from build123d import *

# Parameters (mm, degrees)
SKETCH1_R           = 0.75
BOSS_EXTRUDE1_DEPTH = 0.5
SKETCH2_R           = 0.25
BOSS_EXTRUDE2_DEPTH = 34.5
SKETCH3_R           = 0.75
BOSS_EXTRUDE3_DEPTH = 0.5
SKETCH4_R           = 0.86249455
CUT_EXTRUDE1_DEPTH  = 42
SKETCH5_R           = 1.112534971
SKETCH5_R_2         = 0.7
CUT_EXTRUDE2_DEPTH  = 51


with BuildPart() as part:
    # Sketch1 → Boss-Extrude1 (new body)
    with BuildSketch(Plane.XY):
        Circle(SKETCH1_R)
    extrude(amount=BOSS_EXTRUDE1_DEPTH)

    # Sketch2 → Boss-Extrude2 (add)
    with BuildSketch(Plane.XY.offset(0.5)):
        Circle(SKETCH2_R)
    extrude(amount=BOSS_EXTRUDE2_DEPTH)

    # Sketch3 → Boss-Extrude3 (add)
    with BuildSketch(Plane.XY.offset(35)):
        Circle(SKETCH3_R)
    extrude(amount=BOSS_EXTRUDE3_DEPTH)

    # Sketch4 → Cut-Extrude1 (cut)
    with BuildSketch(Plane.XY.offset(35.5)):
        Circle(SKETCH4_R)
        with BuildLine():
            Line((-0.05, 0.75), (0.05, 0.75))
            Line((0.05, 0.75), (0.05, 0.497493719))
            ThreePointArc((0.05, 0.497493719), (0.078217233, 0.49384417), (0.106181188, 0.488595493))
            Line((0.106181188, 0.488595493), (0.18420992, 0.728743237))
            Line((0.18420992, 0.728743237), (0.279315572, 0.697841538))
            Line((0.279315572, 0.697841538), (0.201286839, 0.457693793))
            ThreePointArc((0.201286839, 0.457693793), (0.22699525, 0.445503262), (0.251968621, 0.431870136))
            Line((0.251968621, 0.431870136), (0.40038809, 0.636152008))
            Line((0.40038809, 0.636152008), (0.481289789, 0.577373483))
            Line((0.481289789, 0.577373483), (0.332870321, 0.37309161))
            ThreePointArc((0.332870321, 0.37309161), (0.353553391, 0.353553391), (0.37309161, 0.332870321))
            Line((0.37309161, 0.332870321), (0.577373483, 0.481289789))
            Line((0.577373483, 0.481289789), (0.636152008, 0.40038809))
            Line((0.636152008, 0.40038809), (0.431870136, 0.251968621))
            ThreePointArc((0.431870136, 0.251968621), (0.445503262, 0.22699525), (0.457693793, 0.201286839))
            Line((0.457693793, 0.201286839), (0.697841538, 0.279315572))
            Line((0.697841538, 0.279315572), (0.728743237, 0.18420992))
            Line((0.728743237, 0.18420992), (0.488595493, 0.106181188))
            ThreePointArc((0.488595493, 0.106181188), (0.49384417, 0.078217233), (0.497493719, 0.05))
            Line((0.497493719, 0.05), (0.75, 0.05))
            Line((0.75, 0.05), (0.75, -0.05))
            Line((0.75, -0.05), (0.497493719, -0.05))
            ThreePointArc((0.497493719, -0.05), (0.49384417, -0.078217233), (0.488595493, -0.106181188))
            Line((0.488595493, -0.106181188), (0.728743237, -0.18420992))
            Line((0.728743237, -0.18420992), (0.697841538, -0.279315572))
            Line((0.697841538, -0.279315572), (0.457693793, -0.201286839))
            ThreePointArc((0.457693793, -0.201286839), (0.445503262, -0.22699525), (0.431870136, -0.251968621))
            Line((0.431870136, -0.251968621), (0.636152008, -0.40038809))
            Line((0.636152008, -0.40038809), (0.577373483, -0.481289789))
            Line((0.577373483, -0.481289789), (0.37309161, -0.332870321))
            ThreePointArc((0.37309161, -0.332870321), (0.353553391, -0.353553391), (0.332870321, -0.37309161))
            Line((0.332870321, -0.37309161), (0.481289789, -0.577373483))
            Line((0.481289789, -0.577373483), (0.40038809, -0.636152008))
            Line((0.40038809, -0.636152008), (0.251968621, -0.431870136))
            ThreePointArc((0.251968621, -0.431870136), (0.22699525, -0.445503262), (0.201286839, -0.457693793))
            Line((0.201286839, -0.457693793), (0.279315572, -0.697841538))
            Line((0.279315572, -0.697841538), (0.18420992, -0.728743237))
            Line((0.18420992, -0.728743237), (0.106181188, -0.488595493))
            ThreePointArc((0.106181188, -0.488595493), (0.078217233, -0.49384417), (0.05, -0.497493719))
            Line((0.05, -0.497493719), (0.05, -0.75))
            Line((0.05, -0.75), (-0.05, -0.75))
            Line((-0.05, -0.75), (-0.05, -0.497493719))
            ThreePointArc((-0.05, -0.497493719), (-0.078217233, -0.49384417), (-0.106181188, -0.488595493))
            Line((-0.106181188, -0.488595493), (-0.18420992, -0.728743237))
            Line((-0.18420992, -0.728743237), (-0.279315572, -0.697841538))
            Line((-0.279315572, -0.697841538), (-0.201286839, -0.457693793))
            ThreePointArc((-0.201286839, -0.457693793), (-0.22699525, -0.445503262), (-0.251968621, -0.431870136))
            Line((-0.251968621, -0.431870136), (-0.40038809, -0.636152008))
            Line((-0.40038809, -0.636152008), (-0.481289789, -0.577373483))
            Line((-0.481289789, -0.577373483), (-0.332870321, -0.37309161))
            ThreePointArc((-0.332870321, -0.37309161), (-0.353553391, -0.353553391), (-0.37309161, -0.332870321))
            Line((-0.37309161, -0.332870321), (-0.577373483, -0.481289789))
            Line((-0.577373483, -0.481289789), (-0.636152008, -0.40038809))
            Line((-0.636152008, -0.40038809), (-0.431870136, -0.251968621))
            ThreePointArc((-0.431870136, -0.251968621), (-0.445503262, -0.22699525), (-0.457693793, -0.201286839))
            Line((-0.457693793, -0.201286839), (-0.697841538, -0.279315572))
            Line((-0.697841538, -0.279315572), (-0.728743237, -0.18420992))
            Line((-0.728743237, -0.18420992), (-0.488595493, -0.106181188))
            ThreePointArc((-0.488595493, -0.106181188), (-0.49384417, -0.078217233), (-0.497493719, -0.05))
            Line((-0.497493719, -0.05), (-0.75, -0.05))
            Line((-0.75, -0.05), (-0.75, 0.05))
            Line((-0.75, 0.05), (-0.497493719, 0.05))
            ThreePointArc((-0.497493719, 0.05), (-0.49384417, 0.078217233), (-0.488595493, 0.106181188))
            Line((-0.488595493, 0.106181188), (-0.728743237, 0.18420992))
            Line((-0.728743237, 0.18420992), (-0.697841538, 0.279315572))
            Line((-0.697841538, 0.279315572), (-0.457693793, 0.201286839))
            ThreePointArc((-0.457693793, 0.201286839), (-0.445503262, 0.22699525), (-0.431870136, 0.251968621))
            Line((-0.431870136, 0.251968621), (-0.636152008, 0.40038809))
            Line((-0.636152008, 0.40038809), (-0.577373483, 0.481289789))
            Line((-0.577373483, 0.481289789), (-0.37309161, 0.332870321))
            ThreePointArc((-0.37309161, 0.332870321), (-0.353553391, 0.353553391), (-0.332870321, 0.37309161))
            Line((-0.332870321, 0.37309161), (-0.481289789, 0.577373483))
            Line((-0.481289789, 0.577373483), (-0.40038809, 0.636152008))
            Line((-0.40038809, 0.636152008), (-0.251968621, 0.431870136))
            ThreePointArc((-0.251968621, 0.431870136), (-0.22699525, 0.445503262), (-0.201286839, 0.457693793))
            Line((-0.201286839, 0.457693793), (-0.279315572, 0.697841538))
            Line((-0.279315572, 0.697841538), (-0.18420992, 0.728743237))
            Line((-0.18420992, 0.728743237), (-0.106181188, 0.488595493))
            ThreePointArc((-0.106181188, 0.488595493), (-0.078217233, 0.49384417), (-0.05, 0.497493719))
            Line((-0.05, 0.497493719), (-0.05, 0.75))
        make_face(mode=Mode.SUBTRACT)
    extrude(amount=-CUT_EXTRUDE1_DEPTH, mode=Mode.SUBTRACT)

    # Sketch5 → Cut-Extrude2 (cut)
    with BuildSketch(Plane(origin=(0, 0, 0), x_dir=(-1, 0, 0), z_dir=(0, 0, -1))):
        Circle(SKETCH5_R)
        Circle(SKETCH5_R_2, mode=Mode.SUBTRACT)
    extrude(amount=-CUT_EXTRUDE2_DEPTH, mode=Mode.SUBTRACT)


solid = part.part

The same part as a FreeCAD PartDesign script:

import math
import FreeCAD as App
import Part
import Sketcher

V = App.Vector
Q = App.Units.Quantity

doc = App.newDocument("Part")
body = doc.addObject("PartDesign::Body", "Body")

# Sketch on XY plane
sketch1 = body.newObject("Sketcher::SketchObject", "Sketch")
sketch1.AttachmentSupport = (doc.getObject("XY_Plane"), [""])
sketch1.MapMode = "FlatFace"
sketch1.addGeometry(Part.Circle(V(0, 0, 0), V(0, 0, 1), 0.8), False)
sketch1.addConstraint([
    Sketcher.Constraint("Coincident", 0, 3, -1, 1),
    Sketcher.Constraint("Diameter", 0, Q("1.5 mm")),
])
pad1 = body.newObject("PartDesign::Pad", "Pad")
pad1.Profile = sketch1
pad1.Length = 0.5

# Sketch on XY plane
sketch2 = body.newObject("Sketcher::SketchObject", "Sketch001")
sketch2.AttachmentSupport = (doc.getObject("XY_Plane"), [""])
sketch2.MapMode = "FlatFace"
sketch2.AttachmentOffset = App.Placement(V(0, 0, 0.5), App.Rotation())
sketch2.addGeometry(Part.Circle(V(0, 0, 0), V(0, 0, 1), 0.25), False)
sketch2.addConstraint([
    Sketcher.Constraint("Coincident", 0, 3, -1, 1),
    Sketcher.Constraint("Diameter", 0, Q("0.5 mm")),
])
pad2 = body.newObject("PartDesign::Pad", "Pad001")
pad2.Profile = sketch2
pad2.Length = 34.5

# Sketch on XY plane
sketch3 = body.newObject("Sketcher::SketchObject", "Sketch002")
sketch3.AttachmentSupport = (doc.getObject("XY_Plane"), [""])
sketch3.MapMode = "FlatFace"
sketch3.AttachmentOffset = App.Placement(V(0, 0, 35), App.Rotation())
sketch3.addGeometry(Part.Circle(V(0, 0, 0), V(0, 0, 1), 0.8), False)
sketch3.addConstraint([
    Sketcher.Constraint("Coincident", 0, 3, -1, 1),
    Sketcher.Constraint("Diameter", 0, Q("1.5 mm")),
])
pad3 = body.newObject("PartDesign::Pad", "Pad002")
pad3.Profile = sketch3
pad3.Length = 0.5

# Sketch on XY plane
sketch4 = body.newObject("Sketcher::SketchObject", "Sketch003")
sketch4.AttachmentSupport = (doc.getObject("XY_Plane"), [""])
sketch4.MapMode = "FlatFace"
sketch4.AttachmentOffset = App.Placement(V(0, 0, 35.5), App.Rotation())
sketch4.addGeometry([
    Part.Circle(V(0, 0, 0), V(0, 0, 1), 0.86),  # 0
    Part.LineSegment(V(-0.05, 0.5, 0), V(-0.05, 0.75, 0)),  # 1
    Part.LineSegment(V(-0.05, 0.75, 0), V(0.05, 0.75, 0)),  # 2
    Part.LineSegment(V(0.05, 0.75, 0), V(0.05, 0.5, 0)),  # 3
    Part.ArcOfCircle(Part.Circle(V(0, 0, 0), V(0, 0, 1), 0.5), math.radians(77.74), math.radians(84.26)),  # 4
    Part.LineSegment(V(0.11, 0.49, 0), V(0.18, 0.73, 0)),  # 5
    Part.LineSegment(V(0.18, 0.73, 0), V(0.28, 0.7, 0)),  # 6
    Part.LineSegment(V(0.28, 0.7, 0), V(0.2, 0.46, 0)),  # 7
    Part.ArcOfCircle(Part.Circle(V(0, 0, 0), V(0, 0, 1), 0.5), math.radians(59.74), math.radians(66.26)),  # 8
    Part.LineSegment(V(0.25, 0.43, 0), V(0.4, 0.64, 0)),  # 9
    Part.LineSegment(V(0.4, 0.64, 0), V(0.48, 0.58, 0)),  # 10
    Part.LineSegment(V(0.48, 0.58, 0), V(0.33, 0.37, 0)),  # 11
    Part.ArcOfCircle(Part.Circle(V(0, 0, 0), V(0, 0, 1), 0.5), math.radians(41.74), math.radians(48.26)),  # 12
    Part.LineSegment(V(0.37, 0.33, 0), V(0.58, 0.48, 0)),  # 13
    Part.LineSegment(V(0.58, 0.48, 0), V(0.64, 0.4, 0)),  # 14
    Part.LineSegment(V(0.64, 0.4, 0), V(0.43, 0.25, 0)),  # 15
    Part.ArcOfCircle(Part.Circle(V(0, 0, 0), V(0, 0, 1), 0.5), math.radians(23.74), math.radians(30.26)),  # 16
    Part.LineSegment(V(0.46, 0.2, 0), V(0.7, 0.28, 0)),  # 17
    Part.LineSegment(V(0.7, 0.28, 0), V(0.73, 0.18, 0)),  # 18
    Part.LineSegment(V(0.73, 0.18, 0), V(0.49, 0.11, 0)),  # 19
    Part.ArcOfCircle(Part.Circle(V(0, 0, 0), V(0, 0, 1), 0.5), math.radians(5.74), math.radians(12.26)),  # 20
    Part.LineSegment(V(0.5, 0.05, 0), V(0.75, 0.05, 0)),  # 21
    Part.LineSegment(V(0.75, 0.05, 0), V(0.75, -0.05, 0)),  # 22
    Part.LineSegment(V(0.75, -0.05, 0), V(0.5, -0.05, 0)),  # 23
    Part.ArcOfCircle(Part.Circle(V(0, 0, 0), V(0, 0, 1), 0.5), math.radians(-12.26), math.radians(-5.74)),  # 24
    Part.LineSegment(V(0.49, -0.11, 0), V(0.73, -0.18, 0)),  # 25
    Part.LineSegment(V(0.73, -0.18, 0), V(0.7, -0.28, 0)),  # 26
    Part.LineSegment(V(0.7, -0.28, 0), V(0.46, -0.2, 0)),  # 27
    Part.ArcOfCircle(Part.Circle(V(0, 0, 0), V(0, 0, 1), 0.5), math.radians(-30.26), math.radians(-23.74)),  # 28
    Part.LineSegment(V(0.43, -0.25, 0), V(0.64, -0.4, 0)),  # 29
    Part.LineSegment(V(0.64, -0.4, 0), V(0.58, -0.48, 0)),  # 30
    Part.LineSegment(V(0.58, -0.48, 0), V(0.37, -0.33, 0)),  # 31
    Part.ArcOfCircle(Part.Circle(V(0, 0, 0), V(0, 0, 1), 0.5), math.radians(-48.26), math.radians(-41.74)),  # 32
    Part.LineSegment(V(0.33, -0.37, 0), V(0.48, -0.58, 0)),  # 33
    Part.LineSegment(V(0.48, -0.58, 0), V(0.4, -0.64, 0)),  # 34
    Part.LineSegment(V(0.4, -0.64, 0), V(0.25, -0.43, 0)),  # 35
    Part.ArcOfCircle(Part.Circle(V(0, 0, 0), V(0, 0, 1), 0.5), math.radians(-66.26), math.radians(-59.74)),  # 36
    Part.LineSegment(V(0.2, -0.46, 0), V(0.28, -0.7, 0)),  # 37
    Part.LineSegment(V(0.28, -0.7, 0), V(0.18, -0.73, 0)),  # 38
    Part.LineSegment(V(0.18, -0.73, 0), V(0.11, -0.49, 0)),  # 39
    Part.ArcOfCircle(Part.Circle(V(0, 0, 0), V(0, 0, 1), 0.5), math.radians(-84.26), math.radians(-77.74)),  # 40
    Part.LineSegment(V(0.05, -0.5, 0), V(0.05, -0.75, 0)),  # 41
    Part.LineSegment(V(0.05, -0.75, 0), V(-0.05, -0.75, 0)),  # 42
    Part.LineSegment(V(-0.05, -0.75, 0), V(-0.05, -0.5, 0)),  # 43
    Part.ArcOfCircle(Part.Circle(V(0, 0, 0), V(0, 0, 1), 0.5), math.radians(-102.26), math.radians(-95.74)),  # 44
    Part.LineSegment(V(-0.11, -0.49, 0), V(-0.18, -0.73, 0)),  # 45
    Part.LineSegment(V(-0.18, -0.73, 0), V(-0.28, -0.7, 0)),  # 46
    Part.LineSegment(V(-0.28, -0.7, 0), V(-0.2, -0.46, 0)),  # 47
    Part.ArcOfCircle(Part.Circle(V(0, 0, 0), V(0, 0, 1), 0.5), math.radians(-120.26), math.radians(-113.74)),  # 48
    Part.LineSegment(V(-0.25, -0.43, 0), V(-0.4, -0.64, 0)),  # 49
    Part.LineSegment(V(-0.4, -0.64, 0), V(-0.48, -0.58, 0)),  # 50
    Part.LineSegment(V(-0.48, -0.58, 0), V(-0.33, -0.37, 0)),  # 51
    Part.ArcOfCircle(Part.Circle(V(0, 0, 0), V(0, 0, 1), 0.5), math.radians(-138.26), math.radians(-131.74)),  # 52
    Part.LineSegment(V(-0.37, -0.33, 0), V(-0.58, -0.48, 0)),  # 53
    Part.LineSegment(V(-0.58, -0.48, 0), V(-0.64, -0.4, 0)),  # 54
    Part.LineSegment(V(-0.64, -0.4, 0), V(-0.43, -0.25, 0)),  # 55
    Part.ArcOfCircle(Part.Circle(V(0, 0, 0), V(0, 0, 1), 0.5), math.radians(-156.26), math.radians(-149.74)),  # 56
    Part.LineSegment(V(-0.46, -0.2, 0), V(-0.7, -0.28, 0)),  # 57
    Part.LineSegment(V(-0.7, -0.28, 0), V(-0.73, -0.18, 0)),  # 58
    Part.LineSegment(V(-0.73, -0.18, 0), V(-0.49, -0.11, 0)),  # 59
    Part.ArcOfCircle(Part.Circle(V(0, 0, 0), V(0, 0, 1), 0.5), math.radians(-174.26), math.radians(-167.74)),  # 60
    Part.LineSegment(V(-0.5, -0.05, 0), V(-0.75, -0.05, 0)),  # 61
    Part.LineSegment(V(-0.75, -0.05, 0), V(-0.75, 0.05, 0)),  # 62
    Part.LineSegment(V(-0.75, 0.05, 0), V(-0.5, 0.05, 0)),  # 63
    Part.ArcOfCircle(Part.Circle(V(0, 0, 0), V(0, 0, 1), 0.5), math.radians(167.74), math.radians(174.26)),  # 64
    Part.LineSegment(V(-0.49, 0.11, 0), V(-0.73, 0.18, 0)),  # 65
    Part.LineSegment(V(-0.73, 0.18, 0), V(-0.7, 0.28, 0)),  # 66
    Part.LineSegment(V(-0.7, 0.28, 0), V(-0.46, 0.2, 0)),  # 67
    Part.ArcOfCircle(Part.Circle(V(0, 0, 0), V(0, 0, 1), 0.5), math.radians(149.74), math.radians(156.26)),  # 68
    Part.LineSegment(V(-0.43, 0.25, 0), V(-0.64, 0.4, 0)),  # 69
    Part.LineSegment(V(-0.64, 0.4, 0), V(-0.58, 0.48, 0)),  # 70
    Part.LineSegment(V(-0.58, 0.48, 0), V(-0.37, 0.33, 0)),  # 71
    Part.ArcOfCircle(Part.Circle(V(0, 0, 0), V(0, 0, 1), 0.5), math.radians(131.74), math.radians(138.26)),  # 72
    Part.LineSegment(V(-0.33, 0.37, 0), V(-0.48, 0.58, 0)),  # 73
    Part.LineSegment(V(-0.48, 0.58, 0), V(-0.4, 0.64, 0)),  # 74
    Part.LineSegment(V(-0.4, 0.64, 0), V(-0.25, 0.43, 0)),  # 75
    Part.ArcOfCircle(Part.Circle(V(0, 0, 0), V(0, 0, 1), 0.5), math.radians(113.74), math.radians(120.26)),  # 76
    Part.LineSegment(V(-0.2, 0.46, 0), V(-0.28, 0.7, 0)),  # 77
    Part.LineSegment(V(-0.28, 0.7, 0), V(-0.18, 0.73, 0)),  # 78
    Part.LineSegment(V(-0.18, 0.73, 0), V(-0.11, 0.49, 0)),  # 79
    Part.ArcOfCircle(Part.Circle(V(0, 0, 0), V(0, 0, 1), 0.5), math.radians(95.74), math.radians(102.26)),  # 80
], False)
sketch4.addConstraint([
    Sketcher.Constraint("Coincident", 1, 2, 2, 1),
    Sketcher.Constraint("Coincident", 2, 2, 3, 1),
    Sketcher.Constraint("Coincident", 3, 2, 4, 2),
    Sketcher.Constraint("Coincident", 4, 1, 5, 1),
    Sketcher.Constraint("Coincident", 5, 2, 6, 1),
    Sketcher.Constraint("Coincident", 6, 2, 7, 1),
    Sketcher.Constraint("Coincident", 7, 2, 8, 2),
    Sketcher.Constraint("Coincident", 8, 1, 9, 1),
    Sketcher.Constraint("Coincident", 9, 2, 10, 1),
    Sketcher.Constraint("Coincident", 10, 2, 11, 1),
    Sketcher.Constraint("Coincident", 11, 2, 12, 2),
    Sketcher.Constraint("Coincident", 12, 1, 13, 1),
    Sketcher.Constraint("Coincident", 13, 2, 14, 1),
    Sketcher.Constraint("Coincident", 14, 2, 15, 1),
    Sketcher.Constraint("Coincident", 15, 2, 16, 2),
    Sketcher.Constraint("Coincident", 16, 1, 17, 1),
    Sketcher.Constraint("Coincident", 17, 2, 18, 1),
    Sketcher.Constraint("Coincident", 18, 2, 19, 1),
    Sketcher.Constraint("Coincident", 19, 2, 20, 2),
    Sketcher.Constraint("Coincident", 20, 1, 21, 1),
    Sketcher.Constraint("Coincident", 21, 2, 22, 1),
    Sketcher.Constraint("Coincident", 22, 2, 23, 1),
    Sketcher.Constraint("Coincident", 23, 2, 24, 2),
    Sketcher.Constraint("Coincident", 24, 1, 25, 1),
    Sketcher.Constraint("Coincident", 25, 2, 26, 1),
    Sketcher.Constraint("Coincident", 26, 2, 27, 1),
    Sketcher.Constraint("Coincident", 27, 2, 28, 2),
    Sketcher.Constraint("Coincident", 28, 1, 29, 1),
    Sketcher.Constraint("Coincident", 29, 2, 30, 1),
    Sketcher.Constraint("Coincident", 30, 2, 31, 1),
    Sketcher.Constraint("Coincident", 31, 2, 32, 2),
    Sketcher.Constraint("Coincident", 32, 1, 33, 1),
    Sketcher.Constraint("Coincident", 33, 2, 34, 1),
    Sketcher.Constraint("Coincident", 34, 2, 35, 1),
    Sketcher.Constraint("Coincident", 35, 2, 36, 2),
    Sketcher.Constraint("Coincident", 36, 1, 37, 1),
    Sketcher.Constraint("Coincident", 37, 2, 38, 1),
    Sketcher.Constraint("Coincident", 38, 2, 39, 1),
    Sketcher.Constraint("Coincident", 39, 2, 40, 2),
    Sketcher.Constraint("Coincident", 40, 1, 41, 1),
    Sketcher.Constraint("Coincident", 41, 2, 42, 1),
    Sketcher.Constraint("Coincident", 42, 2, 43, 1),
    Sketcher.Constraint("Coincident", 43, 2, 44, 2),
    Sketcher.Constraint("Coincident", 44, 1, 45, 1),
    Sketcher.Constraint("Coincident", 45, 2, 46, 1),
    Sketcher.Constraint("Coincident", 46, 2, 47, 1),
    Sketcher.Constraint("Coincident", 47, 2, 48, 2),
    Sketcher.Constraint("Coincident", 48, 1, 49, 1),
    Sketcher.Constraint("Coincident", 49, 2, 50, 1),
    Sketcher.Constraint("Coincident", 50, 2, 51, 1),
    Sketcher.Constraint("Coincident", 51, 2, 52, 2),
    Sketcher.Constraint("Coincident", 52, 1, 53, 1),
    Sketcher.Constraint("Coincident", 53, 2, 54, 1),
    Sketcher.Constraint("Coincident", 54, 2, 55, 1),
    Sketcher.Constraint("Coincident", 55, 2, 56, 2),
    Sketcher.Constraint("Coincident", 56, 1, 57, 1),
    Sketcher.Constraint("Coincident", 57, 2, 58, 1),
    Sketcher.Constraint("Coincident", 58, 2, 59, 1),
    Sketcher.Constraint("Coincident", 59, 2, 60, 2),
    Sketcher.Constraint("Coincident", 60, 1, 61, 1),
    Sketcher.Constraint("Coincident", 61, 2, 62, 1),
    Sketcher.Constraint("Coincident", 62, 2, 63, 1),
    Sketcher.Constraint("Coincident", 63, 2, 64, 2),
    Sketcher.Constraint("Coincident", 64, 1, 65, 1),
    Sketcher.Constraint("Coincident", 65, 2, 66, 1),
    Sketcher.Constraint("Coincident", 66, 2, 67, 1),
    Sketcher.Constraint("Coincident", 67, 2, 68, 2),
    Sketcher.Constraint("Coincident", 68, 1, 69, 1),
    Sketcher.Constraint("Coincident", 69, 2, 70, 1),
    Sketcher.Constraint("Coincident", 70, 2, 71, 1),
    Sketcher.Constraint("Coincident", 71, 2, 72, 2),
    Sketcher.Constraint("Coincident", 72, 1, 73, 1),
    Sketcher.Constraint("Coincident", 73, 2, 74, 1),
    Sketcher.Constraint("Coincident", 74, 2, 75, 1),
    Sketcher.Constraint("Coincident", 75, 2, 76, 2),
    Sketcher.Constraint("Coincident", 76, 1, 77, 1),
    Sketcher.Constraint("Coincident", 77, 2, 78, 1),
    Sketcher.Constraint("Coincident", 78, 2, 79, 1),
    Sketcher.Constraint("Coincident", 79, 2, 80, 2),
    Sketcher.Constraint("Coincident", 80, 1, 1, 1),
    Sketcher.Constraint("Vertical", 1),
    Sketcher.Constraint("Horizontal", 2),
    Sketcher.Constraint("Vertical", 3),
    Sketcher.Constraint("Horizontal", 21),
    Sketcher.Constraint("Vertical", 22),
    Sketcher.Constraint("Horizontal", 23),
    Sketcher.Constraint("Vertical", 41),
    Sketcher.Constraint("Horizontal", 42),
    Sketcher.Constraint("Vertical", 43),
    Sketcher.Constraint("Horizontal", 61),
    Sketcher.Constraint("Vertical", 62),
    Sketcher.Constraint("Horizontal", 63),
    Sketcher.Constraint("Coincident", 0, 3, -1, 1),
    Sketcher.Constraint("Coincident", 4, 3, -1, 1),
    Sketcher.Constraint("Coincident", 8, 3, -1, 1),
    Sketcher.Constraint("Coincident", 12, 3, -1, 1),
    Sketcher.Constraint("Coincident", 16, 3, -1, 1),
    Sketcher.Constraint("Coincident", 20, 3, -1, 1),
    Sketcher.Constraint("Coincident", 24, 3, -1, 1),
    Sketcher.Constraint("Coincident", 28, 3, -1, 1),
    Sketcher.Constraint("Coincident", 32, 3, -1, 1),
    Sketcher.Constraint("Coincident", 36, 3, -1, 1),
    Sketcher.Constraint("Coincident", 40, 3, -1, 1),
    Sketcher.Constraint("Coincident", 44, 3, -1, 1),
    Sketcher.Constraint("Coincident", 48, 3, -1, 1),
    Sketcher.Constraint("Coincident", 52, 3, -1, 1),
    Sketcher.Constraint("Coincident", 56, 3, -1, 1),
    Sketcher.Constraint("Coincident", 60, 3, -1, 1),
    Sketcher.Constraint("Coincident", 64, 3, -1, 1),
    Sketcher.Constraint("Coincident", 68, 3, -1, 1),
    Sketcher.Constraint("Coincident", 72, 3, -1, 1),
    Sketcher.Constraint("Coincident", 76, 3, -1, 1),
    Sketcher.Constraint("Coincident", 80, 3, -1, 1),
    Sketcher.Constraint("Equal", 4, 8),
    Sketcher.Constraint("Equal", 8, 12),
    Sketcher.Constraint("Equal", 12, 16),
    Sketcher.Constraint("Equal", 16, 20),
    Sketcher.Constraint("Equal", 20, 24),
    Sketcher.Constraint("Equal", 24, 28),
    Sketcher.Constraint("Equal", 28, 32),
    Sketcher.Constraint("Equal", 32, 36),
    Sketcher.Constraint("Equal", 36, 40),
    Sketcher.Constraint("Equal", 40, 44),
    Sketcher.Constraint("Equal", 44, 48),
    Sketcher.Constraint("Equal", 48, 52),
    Sketcher.Constraint("Equal", 52, 56),
    Sketcher.Constraint("Equal", 56, 60),
    Sketcher.Constraint("Equal", 60, 64),
    Sketcher.Constraint("Equal", 64, 68),
    Sketcher.Constraint("Equal", 68, 72),
    Sketcher.Constraint("Equal", 72, 76),
    Sketcher.Constraint("Equal", 76, 80),
    Sketcher.Constraint("Symmetric", 1, 2, 41, 2, -1, 1),
    Sketcher.Constraint("Symmetric", 5, 2, 45, 2, -1, 1),
    Sketcher.Constraint("Symmetric", 6, 2, 46, 2, -1, 1),
    Sketcher.Constraint("Symmetric", 9, 2, 49, 2, -1, 1),
    Sketcher.Constraint("Symmetric", 10, 2, 50, 2, -1, 1),
    Sketcher.Constraint("Symmetric", 13, 2, 53, 2, -1, 1),
    Sketcher.Constraint("Symmetric", 14, 2, 54, 2, -1, 1),
    Sketcher.Constraint("Symmetric", 17, 2, 57, 2, -1, 1),
    Sketcher.Constraint("Symmetric", 18, 2, 58, 2, -1, 1),
    Sketcher.Constraint("Symmetric", 21, 2, 61, 2, -1, 1),
    Sketcher.Constraint("Symmetric", 25, 2, 65, 2, -1, 1),
    Sketcher.Constraint("Symmetric", 26, 2, 66, 2, -1, 1),
    Sketcher.Constraint("Symmetric", 29, 2, 69, 2, -1, 1),
    Sketcher.Constraint("Symmetric", 30, 2, 70, 2, -1, 1),
    Sketcher.Constraint("Symmetric", 33, 2, 73, 2, -1, 1),
    Sketcher.Constraint("Symmetric", 34, 2, 74, 2, -1, 1),
    Sketcher.Constraint("Symmetric", 37, 2, 77, 2, -1, 1),
    Sketcher.Constraint("Symmetric", 38, 2, 78, 2, -1, 1),
    Sketcher.Constraint("Symmetric", 38, 2, 45, 2, -2),
    Sketcher.Constraint("Symmetric", 37, 2, 46, 2, -2),
    Sketcher.Constraint("Symmetric", 34, 2, 49, 2, -2),
    Sketcher.Constraint("Symmetric", 33, 2, 50, 2, -2),
    Sketcher.Constraint("Symmetric", 30, 2, 53, 2, -2),
    Sketcher.Constraint("Symmetric", 29, 2, 54, 2, -2),
    Sketcher.Constraint("Symmetric", 26, 2, 57, 2, -2),
    Sketcher.Constraint("Symmetric", 25, 2, 58, 2, -2),
    Sketcher.Constraint("Perpendicular", 5, 6),
    Sketcher.Constraint("Perpendicular", 6, 7),
    Sketcher.Constraint("Perpendicular", 9, 10),
    Sketcher.Constraint("Perpendicular", 10, 11),
    Sketcher.Constraint("Perpendicular", 13, 14),
    Sketcher.Constraint("Perpendicular", 14, 15),
    Sketcher.Constraint("Perpendicular", 17, 18),
    Sketcher.Constraint("Perpendicular", 18, 19),
    Sketcher.Constraint("Perpendicular", 7, 25),
    Sketcher.Constraint("Perpendicular", 25, 26),
    Sketcher.Constraint("Perpendicular", 26, 27),
    Sketcher.Constraint("Perpendicular", 11, 29),
    Sketcher.Constraint("Perpendicular", 29, 30),
    Sketcher.Constraint("Perpendicular", 30, 31),
    Sketcher.Constraint("Perpendicular", 15, 33),
    Sketcher.Constraint("Perpendicular", 34, 35),
    Sketcher.Constraint("Perpendicular", 19, 37),
    Sketcher.Constraint("Perpendicular", 38, 39),
    Sketcher.Constraint("Perpendicular", 27, 45),
    Sketcher.Constraint("Perpendicular", 46, 47),
    Sketcher.Constraint("Perpendicular", 31, 49),
    Sketcher.Constraint("Perpendicular", 50, 51),
    Sketcher.Constraint("Perpendicular", 35, 53),
    Sketcher.Constraint("Perpendicular", 54, 55),
    Sketcher.Constraint("Perpendicular", 39, 57),
    Sketcher.Constraint("Perpendicular", 58, 59),
    Sketcher.Constraint("Perpendicular", 47, 65),
    Sketcher.Constraint("Perpendicular", 66, 67),
    Sketcher.Constraint("Perpendicular", 51, 69),
    Sketcher.Constraint("Perpendicular", 70, 71),
    Sketcher.Constraint("Perpendicular", 55, 73),
    Sketcher.Constraint("Perpendicular", 74, 75),
    Sketcher.Constraint("Perpendicular", 59, 77),
    Sketcher.Constraint("Perpendicular", 78, 79),
    Sketcher.Constraint("Horizontal", 40, 1, 43, 2),
    Sketcher.Constraint("Horizontal", 23, 2, 60, 1),
    Sketcher.Constraint("Horizontal", 21, 2, 62, 2),
    Sketcher.Constraint("Horizontal", 3, 2, 80, 1),
    Sketcher.Constraint("Equal", 63, 1),
    Sketcher.Constraint("Equal", 42, 22),
    Sketcher.Constraint("Equal", 5, 7),
    Sketcher.Constraint("Equal", 7, 9),
    Sketcher.Constraint("Equal", 6, 10),
    Sketcher.Constraint("Equal", 9, 11),
    Sketcher.Constraint("Equal", 11, 13),
    Sketcher.Constraint("Equal", 10, 14),
    Sketcher.Constraint("Equal", 13, 15),
    Sketcher.Constraint("Equal", 15, 17),
    Sketcher.Constraint("Equal", 14, 18),
    Sketcher.Constraint("Equal", 17, 19),
    Sketcher.Constraint("Radius", 4, Q("0.5 mm")),
    Sketcher.Constraint("Angle", 5, Q("72 deg")),
    Sketcher.Constraint("Angle", 9, Q("54 deg")),
    Sketcher.Constraint("DistanceX", 2, 1, 2, 2, Q("0.1 mm")),
    Sketcher.Constraint("Distance", 6, Q("0.1 mm")),
    Sketcher.Constraint("Diameter", 0, Q("1.724989 mm")),
    Sketcher.Constraint("DistanceY", -1, 1, 1, 2, Q("0.75 mm")),
    Sketcher.Constraint("DistanceX", -1, 1, 5, 2, Q("0.18421 mm")),
])
pocket1 = body.newObject("PartDesign::Pocket", "Pocket")
pocket1.Profile = sketch4
pocket1.Length = 42

# Sketch on XY plane
sketch5 = body.newObject("Sketcher::SketchObject", "Sketch004")
sketch5.AttachmentSupport = (doc.getObject("XY_Plane"), [""])
sketch5.MapMode = "FlatFace"
sketch5.addGeometry([
    Part.Circle(V(0, 0, 0), V(0, 0, 1), 1.1),
    Part.Circle(V(0, 0, 0), V(0, 0, 1), 0.7),
], False)
sketch5.addConstraint([
    Sketcher.Constraint("Coincident", 0, 3, -1, 1),
    Sketcher.Constraint("Coincident", 1, 3, -1, 1),
    Sketcher.Constraint("Diameter", 1, Q("1.4 mm")),
    Sketcher.Constraint("Diameter", 0, Q("2.22507 mm")),
])
pocket2 = body.newObject("PartDesign::Pocket", "Pocket001")
pocket2.Profile = sketch5
pocket2.Length = 51
pocket2.Reversed = True

doc.recompute()
